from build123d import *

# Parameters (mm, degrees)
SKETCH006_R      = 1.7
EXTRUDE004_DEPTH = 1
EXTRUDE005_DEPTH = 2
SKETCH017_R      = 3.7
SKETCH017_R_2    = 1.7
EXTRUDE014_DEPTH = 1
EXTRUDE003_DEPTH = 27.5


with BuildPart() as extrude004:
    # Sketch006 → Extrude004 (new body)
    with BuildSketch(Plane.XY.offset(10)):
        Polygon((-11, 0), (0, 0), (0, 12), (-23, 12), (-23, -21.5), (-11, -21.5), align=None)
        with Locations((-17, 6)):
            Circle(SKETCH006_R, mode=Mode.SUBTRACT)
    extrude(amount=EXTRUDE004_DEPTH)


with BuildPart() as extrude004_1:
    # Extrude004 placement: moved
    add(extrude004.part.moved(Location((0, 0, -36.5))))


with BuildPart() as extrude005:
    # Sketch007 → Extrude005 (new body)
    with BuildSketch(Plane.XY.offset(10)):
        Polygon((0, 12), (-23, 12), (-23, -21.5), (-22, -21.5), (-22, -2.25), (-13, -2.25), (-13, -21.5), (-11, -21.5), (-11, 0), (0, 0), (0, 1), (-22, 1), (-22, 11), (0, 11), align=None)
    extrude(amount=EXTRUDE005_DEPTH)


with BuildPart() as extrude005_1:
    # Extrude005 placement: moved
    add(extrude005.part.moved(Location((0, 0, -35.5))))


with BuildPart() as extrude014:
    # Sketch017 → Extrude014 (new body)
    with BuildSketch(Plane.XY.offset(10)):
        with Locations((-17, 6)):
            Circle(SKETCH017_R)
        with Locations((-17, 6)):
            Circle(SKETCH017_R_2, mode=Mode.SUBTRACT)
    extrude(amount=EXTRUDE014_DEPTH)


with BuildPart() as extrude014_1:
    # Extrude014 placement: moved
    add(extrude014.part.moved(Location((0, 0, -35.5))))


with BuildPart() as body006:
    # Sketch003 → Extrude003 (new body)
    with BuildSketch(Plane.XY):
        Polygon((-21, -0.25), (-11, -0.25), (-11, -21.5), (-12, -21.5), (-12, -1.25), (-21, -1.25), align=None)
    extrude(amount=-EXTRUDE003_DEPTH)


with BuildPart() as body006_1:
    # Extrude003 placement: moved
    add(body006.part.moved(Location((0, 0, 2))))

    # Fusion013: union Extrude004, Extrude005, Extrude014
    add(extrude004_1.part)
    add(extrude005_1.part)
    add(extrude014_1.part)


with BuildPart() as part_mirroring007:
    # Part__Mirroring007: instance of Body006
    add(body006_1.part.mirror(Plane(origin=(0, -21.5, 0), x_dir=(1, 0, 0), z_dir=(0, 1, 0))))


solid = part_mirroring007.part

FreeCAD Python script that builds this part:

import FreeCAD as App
import Part
import Sketcher

V = App.Vector
Q = App.Units.Quantity

doc = App.newDocument("Part")
params = doc.addObject("Spreadsheet::Sheet", "Params")
for row, (alias, value) in enumerate([
    ("sketch1_diameter", "3.4 mm"),
    ("sketch1_width", "11 mm"),
    ("sketch1_width2", "23 mm"),
    ("sketch1_height", "33.5 mm"),
    ("pad1_length", "1 mm"),
    ("sketch2_width", "23 mm"),
    ("sketch2_width2", "1 mm"),
    ("sketch2_width3", "9 mm"),
    ("sketch2_width4", "2 mm"),
    ("sketch2_height", "10 mm"),
    ("pad2_length", "2 mm"),
    ("sketch3_diameter", "7.4 mm"),
    ("sketch3_diameter2", "3.4 mm"),
    ("pad3_length", "1 mm"),
    ("sketch4_width", "10 mm"),
    ("sketch4_width2", "9 mm"),
    ("sketch4_height", "20.25 mm"),
    ("pad4_length", "27.5 mm"),
], start=1):
    params.set(f"A{row}", alias)
    params.set(f"B{row}", "=" + value)
    params.setAlias(f"B{row}", alias)

body = doc.addObject("PartDesign::Body", "Body")

sketch1 = body.newObject("Sketcher::SketchObject", "Sketch")
sketch1.AttachmentSupport = (doc.getObject("XY_Plane"), [""])
sketch1.MapMode = "FlatFace"
sketch1.AttachmentOffset = App.Placement(V(0, 0, 10), App.Rotation())
sketch1.addGeometry([
    Part.LineSegment(V(-11, 0, 0), V(0, 0, 0)),
    Part.LineSegment(V(0, 0, 0), V(0, 12, 0)),
    Part.LineSegment(V(0, 12, 0), V(-23, 12, 0)),
    Part.LineSegment(V(-23, 12, 0), V(-23, -21.5, 0)),
    Part.LineSegment(V(-23, -21.5, 0), V(-11, -21.5, 0)),
    Part.LineSegment(V(-11, -21.5, 0), V(-11, 0, 0)),
    Part.Circle(V(-17, 6, 0), V(0, 0, 1), 1.7),
], False)
sketch1.addConstraint([
    Sketcher.Constraint("Coincident", 0, 2, 1, 1),
    Sketcher.Constraint("Coincident", 1, 2, 2, 1),
    Sketcher.Constraint("Coincident", 2, 2, 3, 1),
    Sketcher.Constraint("Coincident", 3, 2, 4, 1),
    Sketcher.Constraint("Coincident", 4, 2, 5, 1),
    Sketcher.Constraint("Coincident", 5, 2, 0, 1),
    Sketcher.Constraint("Horizontal", 0),
    Sketcher.Constraint("Vertical", 1),
    Sketcher.Constraint("Horizontal", 2),
    Sketcher.Constraint("Vertical", 3),
    Sketcher.Constraint("Horizontal", 4),
    Sketcher.Constraint("Vertical", 5),
    Sketcher.Constraint("Coincident", 0, 2, -1, 1),
    Sketcher.Constraint("Equal", 4, 1),
    Sketcher.Constraint("Diameter", 6, Q("3.4 mm")),
    Sketcher.Constraint("DistanceX", 0, 1, 0, 2, Q("11 mm")),
    Sketcher.Constraint("DistanceX", 2, 2, 2, 1, Q("23 mm")),
    Sketcher.Constraint("DistanceY", 3, 2, 3, 1, Q("33.5 mm")),
    Sketcher.Constraint("DistanceX", 6, 3, -1, 1, Q("17 mm")),
    Sketcher.Constraint("DistanceY", -1, 1, 6, 3, Q("6 mm")),
])
sketch1.setExpression("Constraints[14]", "Params.sketch1_diameter")
sketch1.setExpression("Constraints[15]", "Params.sketch1_width")
sketch1.setExpression("Constraints[16]", "Params.sketch1_width2")
sketch1.setExpression("Constraints[17]", "Params.sketch1_height")
pad1 = body.newObject("PartDesign::Pad", "Pad")
pad1.Profile = sketch1
pad1.setExpression("Length", "Params.pad1_length")
body2 = doc.addObject("PartDesign::Body", "Body001")
doc.recompute()

body.Placement = App.Placement(V(0, 0, -36.5), App.Rotation(V(0, 0, 1), 0))
boolean = body2.newObject("PartDesign::Boolean", "Boolean")
boolean.Type = "Fuse"
boolean.addObjects([body])
body3 = doc.addObject("PartDesign::Body", "Body002")

sketch2 = body3.newObject("Sketcher::SketchObject", "Sketch001")
sketch2.AttachmentSupport = (doc.getObject("XY_Plane002"), [""])
sketch2.MapMode = "FlatFace"
sketch2.AttachmentOffset = App.Placement(V(0, 0, 10), App.Rotation())
sketch2.addGeometry([
    Part.LineSegment(V(0, 12, 0), V(-23, 12, 0)),
    Part.LineSegment(V(-23, 12, 0), V(-23, -21.5, 0)),
    Part.LineSegment(V(-23, -21.5, 0), V(-22, -21.5, 0)),
    Part.LineSegment(V(-22, -21.5, 0), V(-22, -2.25, 0)),
    Part.LineSegment(V(-22, -2.25, 0), V(-13, -2.25, 0)),
    Part.LineSegment(V(-13, -2.25, 0), V(-13, -21.5, 0)),
    Part.LineSegment(V(-13, -21.5, 0), V(-11, -21.5, 0)),
    Part.LineSegment(V(-11, -21.5, 0), V(-11, 0, 0)),
    Part.LineSegment(V(-11, 0, 0), V(0, 0, 0)),
    Part.LineSegment(V(0, 0, 0), V(0, 1, 0)),
    Part.LineSegment(V(0, 1, 0), V(-22, 1, 0)),
    Part.LineSegment(V(-22, 1, 0), V(-22, 11, 0)),
    Part.LineSegment(V(-22, 11, 0), V(0, 11, 0)),
    Part.LineSegment(V(0, 11, 0), V(0, 12, 0)),
], False)
sketch2.addConstraint([
    Sketcher.Constraint("Coincident", 0, 2, 1, 1),
    Sketcher.Constraint("Coincident", 1, 2, 2, 1),
    Sketcher.Constraint("Coincident", 2, 2, 3, 1),
    Sketcher.Constraint("Coincident", 3, 2, 4, 1),
    Sketcher.Constraint("Coincident", 4, 2, 5, 1),
    Sketcher.Constraint("Coincident", 5, 2, 6, 1),
    Sketcher.Constraint("Coincident", 6, 2, 7, 1),
    Sketcher.Constraint("Coincident", 7, 2, 8, 1),
    Sketcher.Constraint("Coincident", 8, 2, 9, 1),
    Sketcher.Constraint("Coincident", 9, 2, 10, 1),
    Sketcher.Constraint("Coincident", 10, 2, 11, 1),
    Sketcher.Constraint("Coincident", 11, 2, 12, 1),
    Sketcher.Constraint("Coincident", 12, 2, 13, 1),
    Sketcher.Constraint("Coincident", 13, 2, 0, 1),
    Sketcher.Constraint("Horizontal", 0),
    Sketcher.Constraint("Vertical", 1),
    Sketcher.Constraint("Horizontal", 2),
    Sketcher.Constraint("Vertical", 3),
    Sketcher.Constraint("Horizontal", 4),
    Sketcher.Constraint("Vertical", 5),
    Sketcher.Constraint("Horizontal", 6),
    Sketcher.Constraint("Vertical", 7),
    Sketcher.Constraint("Horizontal", 8),
    Sketcher.Constraint("Vertical", 9),
    Sketcher.Constraint("Horizontal", 10),
    Sketcher.Constraint("Vertical", 11),
    Sketcher.Constraint("Horizontal", 12),
    Sketcher.Constraint("Vertical", 13),
    Sketcher.Constraint("Coincident", 8, 2, -1, 1),
    Sketcher.Constraint("PointOnObject", 12, 2, -2),
    Sketcher.Constraint("Horizontal", 2, 2, 5, 2),
    Sketcher.Constraint("Vertical", 3, 2, 10, 2),
    Sketcher.Constraint("Equal", 2, 9),
    Sketcher.Constraint("Equal", 9, 13),
    Sketcher.Constraint("DistanceX", 0, 2, 0, 1, Q("23 mm")),
    Sketcher.Constraint("DistanceX", 2, 1, 2, 2, Q("1 mm")),
    Sketcher.Constraint("DistanceX", 4, 1, 4, 2, Q("9 mm")),
    Sketcher.Constraint("DistanceX", 6, 1, 6, 2, Q("2 mm")),
    Sketcher.Constraint("DistanceY", 11, 1, 11, 2, Q("10 mm")),
    Sketcher.Constraint("DistanceY", 1, 2, 1, 1, Q("33.5 mm")),
    Sketcher.Constraint("DistanceY", 3, 1, 3, 2, Q("19.25 mm")),
])
sketch2.setExpression("Constraints[34]", "Params.sketch2_width")
sketch2.setExpression("Constraints[35]", "Params.sketch2_width2")
sketch2.setExpression("Constraints[36]", "Params.sketch2_width3")
sketch2.setExpression("Constraints[37]", "Params.sketch2_width4")
sketch2.setExpression("Constraints[38]", "Params.sketch2_height")
pad2 = body3.newObject("PartDesign::Pad", "Pad001")
pad2.Profile = sketch2
pad2.setExpression("Length", "Params.pad2_length")
body4 = doc.addObject("PartDesign::Body", "Body003")
doc.recompute()

body3.Placement = App.Placement(V(0, 0, -35.5), App.Rotation(V(0, 0, 1), 0))
boolean2 = body4.newObject("PartDesign::Boolean", "Boolean001")
boolean2.Type = "Fuse"
boolean2.addObjects([body3])
body5 = doc.addObject("PartDesign::Body", "Body004")

sketch3 = body5.newObject("Sketcher::SketchObject", "Sketch002")
sketch3.AttachmentSupport = (doc.getObject("XY_Plane004"), [""])
sketch3.MapMode = "FlatFace"
sketch3.AttachmentOffset = App.Placement(V(0, 0, 10), App.Rotation())
sketch3.addGeometry([
    Part.Circle(V(-17, 6, 0), V(0, 0, 1), 3.7),
    Part.Circle(V(-17, 6, 0), V(0, 0, 1), 1.7),
], False)
sketch3.addConstraint([
    Sketcher.Constraint("Coincident", 1, 3, 0, 3),
    Sketcher.Constraint("Diameter", 0, Q("7.4 mm")),
    Sketcher.Constraint("Diameter", 1, Q("3.4 mm")),
    Sketcher.Constraint("DistanceX", 0, 3, -1, 1, Q("17 mm")),
    Sketcher.Constraint("DistanceY", -1, 1, 0, 3, Q("6 mm")),
])
sketch3.setExpression("Constraints[1]", "Params.sketch3_diameter")
sketch3.setExpression("Constraints[2]", "Params.sketch3_diameter2")
pad3 = body5.newObject("PartDesign::Pad", "Pad002")
pad3.Profile = sketch3
pad3.setExpression("Length", "Params.pad3_length")
body6 = doc.addObject("PartDesign::Body", "Body005")
doc.recompute()

body5.Placement = App.Placement(V(0, 0, -35.5), App.Rotation(V(0, 0, 1), 0))
boolean3 = body6.newObject("PartDesign::Boolean", "Boolean002")
boolean3.Type = "Fuse"
boolean3.addObjects([body5])
body7 = doc.addObject("PartDesign::Body", "Body006")

sketch4 = body7.newObject("Sketcher::SketchObject", "Sketch003")
sketch4.AttachmentSupport = (doc.getObject("XY_Plane006"), [""])
sketch4.MapMode = "FlatFace"
sketch4.addGeometry([
    Part.LineSegment(V(-11, -0.25, 0), V(-21, -0.25, 0)),
    Part.LineSegment(V(-21, -0.25, 0), V(-21, -1.25, 0)),
    Part.LineSegment(V(-21, -1.25, 0), V(-12, -1.25, 0)),
    Part.LineSegment(V(-12, -1.25, 0), V(-12, -21.5, 0)),
    Part.LineSegment(V(-12, -21.5, 0), V(-11, -21.5, 0)),
    Part.LineSegment(V(-11, -21.5, 0), V(-11, -0.25, 0)),
], False)
sketch4.addConstraint([
    Sketcher.Constraint("Coincident", 0, 2, 1, 1),
    Sketcher.Constraint("Coincident", 1, 2, 2, 1),
    Sketcher.Constraint("Coincident", 2, 2, 3, 1),
    Sketcher.Constraint("Coincident", 3, 2, 4, 1),
    Sketcher.Constraint("Coincident", 4, 2, 5, 1),
    Sketcher.Constraint("Coincident", 5, 2, 0, 1),
    Sketcher.Constraint("Horizontal", 0),
    Sketcher.Constraint("Vertical", 1),
    Sketcher.Constraint("Horizontal", 2),
    Sketcher.Constraint("Vertical", 3),
    Sketcher.Constraint("Horizontal", 4),
    Sketcher.Constraint("Vertical", 5),
    Sketcher.Constraint("Equal", 4, 1),
    Sketcher.Constraint("DistanceX", 0, 2, 0, 1, Q("10 mm")),
    Sketcher.Constraint("DistanceX", 2, 1, 2, 2, Q("9 mm")),
    Sketcher.Constraint("DistanceX", 0, 2, -1, 1, Q("21 mm")),
    Sketcher.Constraint("DistanceY", 3, 2, 3, 1, Q("20.25 mm")),
    Sketcher.Constraint("DistanceY", 3, 2, -1, 1, Q("21.5 mm")),
])
sketch4.setExpression("Constraints[13]", "Params.sketch4_width")
sketch4.setExpression("Constraints[14]", "Params.sketch4_width2")
sketch4.setExpression("Constraints[16]", "Params.sketch4_height")
pad4 = body7.newObject("PartDesign::Pad", "Pad003")
pad4.Profile = sketch4
pad4.setExpression("Length", "Params.pad4_length")
pad4.Reversed = True
body8 = doc.addObject("PartDesign::Body", "Body007")
doc.recompute()

body7.Placement = App.Placement(V(0, 0, 2), App.Rotation(V(0, 0, 1), 0))
boolean4 = body8.newObject("PartDesign::Boolean", "Boolean003")
boolean4.Type = "Fuse"
boolean4.addObjects([body7])
doc.recompute()

boolean5 = body8.newObject("PartDesign::Boolean", "Boolean004")
boolean5.Type = "Fuse"
boolean5.addObjects([body2])
doc.recompute()

boolean6 = body8.newObject("PartDesign::Boolean", "Boolean005")
boolean6.Type = "Fuse"
boolean6.addObjects([body4])
doc.recompute()

boolean7 = body8.newObject("PartDesign::Boolean", "Boolean006")
boolean7.Type = "Fuse"
boolean7.addObjects([body6])
body9 = doc.addObject("PartDesign::Body", "Body008")
doc.recompute()

mirroring = doc.addObject("Part::Mirroring", "Mirroring")
mirroring.Source = body8
mirroring.Base = V(0, -21.5, 0)
mirroring.Normal = V(0, 1, 0)
body9.BaseFeature = mirroring
doc.recompute()
body8.Visibility = False
mirroring.Visibility = False

doc.recompute()
